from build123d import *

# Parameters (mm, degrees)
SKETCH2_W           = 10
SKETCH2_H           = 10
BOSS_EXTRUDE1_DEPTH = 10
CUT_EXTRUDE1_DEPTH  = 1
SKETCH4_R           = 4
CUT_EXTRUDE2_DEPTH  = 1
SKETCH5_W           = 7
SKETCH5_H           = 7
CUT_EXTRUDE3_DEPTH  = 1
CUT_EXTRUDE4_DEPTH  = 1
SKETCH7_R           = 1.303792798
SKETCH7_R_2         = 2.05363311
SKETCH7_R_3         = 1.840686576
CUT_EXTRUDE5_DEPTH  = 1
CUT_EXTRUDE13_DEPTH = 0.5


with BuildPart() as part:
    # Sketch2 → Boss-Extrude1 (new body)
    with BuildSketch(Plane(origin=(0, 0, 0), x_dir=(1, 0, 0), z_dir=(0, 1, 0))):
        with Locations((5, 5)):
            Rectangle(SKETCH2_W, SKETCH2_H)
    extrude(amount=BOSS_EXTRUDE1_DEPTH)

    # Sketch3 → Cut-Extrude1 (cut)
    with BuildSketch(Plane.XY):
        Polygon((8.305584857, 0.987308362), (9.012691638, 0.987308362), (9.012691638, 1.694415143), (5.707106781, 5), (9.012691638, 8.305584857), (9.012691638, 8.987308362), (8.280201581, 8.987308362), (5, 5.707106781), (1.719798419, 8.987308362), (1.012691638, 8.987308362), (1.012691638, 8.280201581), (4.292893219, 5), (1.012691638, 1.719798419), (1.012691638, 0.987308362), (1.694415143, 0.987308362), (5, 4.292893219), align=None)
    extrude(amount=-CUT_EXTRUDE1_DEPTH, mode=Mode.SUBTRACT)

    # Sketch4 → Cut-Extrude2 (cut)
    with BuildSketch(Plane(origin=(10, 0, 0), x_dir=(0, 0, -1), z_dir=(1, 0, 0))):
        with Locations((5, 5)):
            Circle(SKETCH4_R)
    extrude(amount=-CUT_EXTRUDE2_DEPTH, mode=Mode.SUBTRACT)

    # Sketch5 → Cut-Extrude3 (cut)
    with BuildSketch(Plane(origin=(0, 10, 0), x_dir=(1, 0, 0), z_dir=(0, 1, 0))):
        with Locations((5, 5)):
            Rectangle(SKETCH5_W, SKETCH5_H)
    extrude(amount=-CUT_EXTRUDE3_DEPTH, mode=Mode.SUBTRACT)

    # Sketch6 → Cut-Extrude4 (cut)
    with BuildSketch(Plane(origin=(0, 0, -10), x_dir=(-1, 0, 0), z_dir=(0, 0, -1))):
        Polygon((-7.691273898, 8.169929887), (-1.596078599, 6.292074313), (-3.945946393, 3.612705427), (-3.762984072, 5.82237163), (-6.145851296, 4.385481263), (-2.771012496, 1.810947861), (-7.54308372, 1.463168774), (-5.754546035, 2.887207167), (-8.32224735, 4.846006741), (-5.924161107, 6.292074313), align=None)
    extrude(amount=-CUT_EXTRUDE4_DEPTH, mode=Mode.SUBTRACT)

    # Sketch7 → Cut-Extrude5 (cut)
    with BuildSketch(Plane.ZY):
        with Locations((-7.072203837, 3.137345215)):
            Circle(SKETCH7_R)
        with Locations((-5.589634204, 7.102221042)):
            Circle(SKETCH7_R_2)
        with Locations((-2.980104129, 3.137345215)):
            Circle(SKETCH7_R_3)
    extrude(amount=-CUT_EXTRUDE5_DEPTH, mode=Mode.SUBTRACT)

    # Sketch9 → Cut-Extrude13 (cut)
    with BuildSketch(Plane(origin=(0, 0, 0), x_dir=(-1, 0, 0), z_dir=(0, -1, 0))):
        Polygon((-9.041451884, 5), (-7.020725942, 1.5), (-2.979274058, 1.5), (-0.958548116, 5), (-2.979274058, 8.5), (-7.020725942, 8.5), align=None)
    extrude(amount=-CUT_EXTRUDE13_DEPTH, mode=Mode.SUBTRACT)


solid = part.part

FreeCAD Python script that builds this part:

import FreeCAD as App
import Part
import Sketcher

V = App.Vector
Q = App.Units.Quantity

doc = App.newDocument("Part")
body = doc.addObject("PartDesign::Body", "Body")

# Sketch on XZ plane
sketch1 = doc.addObject("Sketcher::SketchObject", "Sketch")
body.addObject(sketch1)
sketch1.AttachmentSupport = (doc.XZ_Plane, [""])
sketch1.MapMode = "FlatFace"
sketch1.addGeometry(Part.LineSegment(V(0, -10, 0), V(0, 0, 0)), False)
sketch1.addGeometry(Part.LineSegment(V(0, 0, 0), V(10, 0, 0)), False)
sketch1.addGeometry(Part.LineSegment(V(10, 0, 0), V(10, -10, 0)), False)
sketch1.addGeometry(Part.LineSegment(V(10, -10, 0), V(0, -10, 0)), False)
sketch1.addConstraint(Sketcher.Constraint("Coincident", 0, 2, 1, 1))
sketch1.addConstraint(Sketcher.Constraint("Coincident", 1, 2, 2, 1))
sketch1.addConstraint(Sketcher.Constraint("Coincident", 2, 2, 3, 1))
sketch1.addConstraint(Sketcher.Constraint("Coincident", 3, 2, 0, 1))
sketch1.addConstraint(Sketcher.Constraint("Vertical", 0))
sketch1.addConstraint(Sketcher.Constraint("Horizontal", 1))
sketch1.addConstraint(Sketcher.Constraint("Vertical", 2))
sketch1.addConstraint(Sketcher.Constraint("Horizontal", 3))
sketch1.addConstraint(Sketcher.Constraint("Coincident", 0, 2, -1, 1))
sketch1.addConstraint(Sketcher.Constraint("Equal", 3, 0))
sketch1.addConstraint(Sketcher.Constraint("DistanceX", 1, 1, 1, 2, 10.0))
pad1 = doc.addObject("PartDesign::Pad", "Pad")
body.addObject(pad1)
pad1.Profile = sketch1
pad1.Length = 10
pad1.Reversed = True

# Sketch on XY plane
sketch2 = doc.addObject("Sketcher::SketchObject", "Sketch001")
body.addObject(sketch2)
sketch2.AttachmentSupport = (doc.XY_Plane, [""])
sketch2.MapMode = "FlatFace"
sketch2.addGeometry(Part.LineSegment(V(8.305585, 0.987308, 0), V(9.012692, 0.987308, 0)), False)
sketch2.addGeometry(Part.LineSegment(V(9.012692, 0.987308, 0), V(9.012692, 1.694415, 0)), False)
sketch2.addGeometry(Part.LineSegment(V(9.012692, 1.694415, 0), V(5.707107, 5, 0)), False)
sketch2.addGeometry(Part.LineSegment(V(5.707107, 5, 0), V(9.012692, 8.305585, 0)), False)
sketch2.addGeometry(Part.LineSegment(V(9.012692, 8.305585, 0), V(9.012692, 8.987308, 0)), False)
sketch2.addGeometry(Part.LineSegment(V(9.012692, 8.987308, 0), V(8.280202, 8.987308, 0)), False)
sketch2.addGeometry(Part.LineSegment(V(8.280202, 8.987308, 0), V(5, 5.707107, 0)), False)
sketch2.addGeometry(Part.LineSegment(V(5, 5.707107, 0), V(1.719798, 8.987308, 0)), False)
sketch2.addGeometry(Part.LineSegment(V(1.719798, 8.987308, 0), V(1.012692, 8.987308, 0)), False)
sketch2.addGeometry(Part.LineSegment(V(1.012692, 8.987308, 0), V(1.012692, 8.280202, 0)), False)
sketch2.addGeometry(Part.LineSegment(V(1.012692, 8.280202, 0), V(4.292893, 5, 0)), False)
sketch2.addGeometry(Part.LineSegment(V(4.292893, 5, 0), V(1.012692, 1.719798, 0)), False)
sketch2.addGeometry(Part.LineSegment(V(1.012692, 1.719798, 0), V(1.012692, 0.987308, 0)), False)
sketch2.addGeometry(Part.LineSegment(V(1.012692, 0.987308, 0), V(1.694415, 0.987308, 0)), False)
sketch2.addGeometry(Part.LineSegment(V(1.694415, 0.987308, 0), V(5, 4.292893, 0)), False)
sketch2.addGeometry(Part.LineSegment(V(5, 4.292893, 0), V(8.305585, 0.987308, 0)), False)
sketch2.addConstraint(Sketcher.Constraint("Coincident", 0, 2, 1, 1))
sketch2.addConstraint(Sketcher.Constraint("Coincident", 1, 2, 2, 1))
sketch2.addConstraint(Sketcher.Constraint("Coincident", 2, 2, 3, 1))
sketch2.addConstraint(Sketcher.Constraint("Coincident", 3, 2, 4, 1))
sketch2.addConstraint(Sketcher.Constraint("Coincident", 4, 2, 5, 1))
sketch2.addConstraint(Sketcher.Constraint("Coincident", 5, 2, 6, 1))
sketch2.addConstraint(Sketcher.Constraint("Coincident", 6, 2, 7, 1))
sketch2.addConstraint(Sketcher.Constraint("Coincident", 7, 2, 8, 1))
sketch2.addConstraint(Sketcher.Constraint("Coincident", 8, 2, 9, 1))
sketch2.addConstraint(Sketcher.Constraint("Coincident", 9, 2, 10, 1))
sketch2.addConstraint(Sketcher.Constraint("Coincident", 10, 2, 11, 1))
sketch2.addConstraint(Sketcher.Constraint("Coincident", 11, 2, 12, 1))
sketch2.addConstraint(Sketcher.Constraint("Coincident", 12, 2, 13, 1))
sketch2.addConstraint(Sketcher.Constraint("Coincident", 13, 2, 14, 1))
sketch2.addConstraint(Sketcher.Constraint("Coincident", 14, 2, 15, 1))
sketch2.addConstraint(Sketcher.Constraint("Coincident", 15, 2, 0, 1))
sketch2.addConstraint(Sketcher.Constraint("Horizontal", 0))
sketch2.addConstraint(Sketcher.Constraint("Vertical", 1))
sketch2.addConstraint(Sketcher.Constraint("Vertical", 4))
sketch2.addConstraint(Sketcher.Constraint("Horizontal", 5))
sketch2.addConstraint(Sketcher.Constraint("Horizontal", 8))
sketch2.addConstraint(Sketcher.Constraint("Vertical", 9))
sketch2.addConstraint(Sketcher.Constraint("Vertical", 12))
sketch2.addConstraint(Sketcher.Constraint("Horizontal", 13))
sketch2.addConstraint(Sketcher.Constraint("Perpendicular", 2, 3))
sketch2.addConstraint(Sketcher.Constraint("Parallel", 3, 6))
sketch2.addConstraint(Sketcher.Constraint("Perpendicular", 6, 7))
sketch2.addConstraint(Sketcher.Constraint("Parallel", 7, 10))
sketch2.addConstraint(Sketcher.Constraint("Perpendicular", 10, 11))
sketch2.addConstraint(Sketcher.Constraint("Parallel", 11, 14))
sketch2.addConstraint(Sketcher.Constraint("Perpendicular", 14, 15))
sketch2.addConstraint(Sketcher.Constraint("Horizontal", 5, 2, 7, 2))
sketch2.addConstraint(Sketcher.Constraint("Horizontal", 2, 2, 10, 2))
sketch2.addConstraint(Sketcher.Constraint("Horizontal", 0, 2, 12, 2))
sketch2.addConstraint(Sketcher.Constraint("Vertical", 1, 2, 3, 2))
sketch2.addConstraint(Sketcher.Constraint("Vertical", 9, 2, 11, 2))
sketch2.addConstraint(Sketcher.Constraint("Vertical", 6, 2, 14, 2))
sketch2.addConstraint(Sketcher.Constraint("Equal", 0, 8))
sketch2.addConstraint(Sketcher.Constraint("Equal", 8, 1))
sketch2.addConstraint(Sketcher.Constraint("Equal", 13, 4))
sketch2.addConstraint(Sketcher.Constraint("Equal", 1, 9))
sketch2.addConstraint(Sketcher.Constraint("Equal", 5, 12))
sketch2.addConstraint(Sketcher.Constraint("Equal", 7, 10))
sketch2.addConstraint(Sketcher.Constraint("DistanceY", -1, 1, 2, 2, 5.0))
sketch2.addConstraint(Sketcher.Constraint("DistanceX", -1, 1, 6, 2, 5.0))
sketch2.addConstraint(Sketcher.Constraint("DistanceY", 0, 2, 4, 2, 8.0))
sketch2.addConstraint(Sketcher.Constraint("DistanceX", 5, 2, 5, 1, 0.73249))
sketch2.addConstraint(Sketcher.Constraint("DistanceX", -1, 1, 5, 2, 8.280202))
pocket1 = doc.addObject("PartDesign::Pocket", "Pocket")
body.addObject(pocket1)
pocket1.Profile = sketch2
pocket1.Length = 1

# Sketch on YZ plane
sketch3 = doc.addObject("Sketcher::SketchObject", "Sketch002")
body.addObject(sketch3)
sketch3.AttachmentSupport = (doc.YZ_Plane, [""])
sketch3.MapMode = "FlatFace"
sketch3.AttachmentOffset = App.Placement(V(0, 0, 10), App.Rotation())
sketch3.addGeometry(Part.Circle(V(5, -5, 0), V(0, 0, 1), 4), False)
sketch3.addConstraint(Sketcher.Constraint("Diameter", 0, 8.0))
sketch3.addConstraint(Sketcher.Constraint("DistanceX", -1, 1, 0, 3, 5.0))
sketch3.addConstraint(Sketcher.Constraint("DistanceY", 0, 3, -1, 1, 5.0))
pocket2 = doc.addObject("PartDesign::Pocket", "Pocket001")
body.addObject(pocket2)
pocket2.Profile = sketch3
pocket2.Length = 1

# Sketch on XZ plane
sketch4 = doc.addObject("Sketcher::SketchObject", "Sketch003")
body.addObject(sketch4)
sketch4.AttachmentSupport = (doc.XZ_Plane, [""])
sketch4.MapMode = "FlatFace"
sketch4.AttachmentOffset = App.Placement(V(0, 0, -10), App.Rotation())
sketch4.addGeometry(Part.LineSegment(V(1.5, -8.5, 0), V(1.5, -1.5, 0)), False)
sketch4.addGeometry(Part.LineSegment(V(1.5, -1.5, 0), V(8.5, -1.5, 0)), False)
sketch4.addGeometry(Part.LineSegment(V(8.5, -1.5, 0), V(8.5, -8.5, 0)), False)
sketch4.addGeometry(Part.LineSegment(V(8.5, -8.5, 0), V(1.5, -8.5, 0)), False)
sketch4.addConstraint(Sketcher.Constraint("Coincident", 0, 2, 1, 1))
sketch4.addConstraint(Sketcher.Constraint("Coincident", 1, 2, 2, 1))
sketch4.addConstraint(Sketcher.Constraint("Coincident", 2, 2, 3, 1))
sketch4.addConstraint(Sketcher.Constraint("Coincident", 3, 2, 0, 1))
sketch4.addConstraint(Sketcher.Constraint("Vertical", 0))
sketch4.addConstraint(Sketcher.Constraint("Horizontal", 1))
sketch4.addConstraint(Sketcher.Constraint("Vertical", 2))
sketch4.addConstraint(Sketcher.Constraint("Horizontal", 3))
sketch4.addConstraint(Sketcher.Constraint("Equal", 3, 0))
sketch4.addConstraint(Sketcher.Constraint("DistanceX", 1, 1, 1, 2, 7.0))
sketch4.addConstraint(Sketcher.Constraint("DistanceX", -1, 1, 0, 2, 1.5))
sketch4.addConstraint(Sketcher.Constraint("DistanceY", 0, 2, -1, 1, 1.5))
pocket3 = doc.addObject("PartDesign::Pocket", "Pocket002")
body.addObject(pocket3)
pocket3.Profile = sketch4
pocket3.Length = 1
pocket3.Reversed = True

# Sketch on XY plane
sketch5 = doc.addObject("Sketcher::SketchObject", "Sketch004")
body.addObject(sketch5)
sketch5.AttachmentSupport = (doc.XY_Plane, [""])
sketch5.MapMode = "FlatFace"
sketch5.AttachmentOffset = App.Placement(V(0, 0, -10), App.Rotation())
sketch5.addGeometry(Part.LineSegment(V(1.596079, 6.292074, 0), V(7.691274, 8.16993, 0)), False)
sketch5.addGeometry(Part.LineSegment(V(7.691274, 8.16993, 0), V(5.924161, 6.292074, 0)), False)
sketch5.addGeometry(Part.LineSegment(V(5.924161, 6.292074, 0), V(8.322247, 4.846007, 0)), False)
sketch5.addGeometry(Part.LineSegment(V(8.322247, 4.846007, 0), V(5.754546, 2.887207, 0)), False)
sketch5.addGeometry(Part.LineSegment(V(5.754546, 2.887207, 0), V(7.543084, 1.463169, 0)), False)
sketch5.addGeometry(Part.LineSegment(V(7.543084, 1.463169, 0), V(2.771012, 1.810948, 0)), False)
sketch5.addGeometry(Part.LineSegment(V(2.771012, 1.810948, 0), V(6.145851, 4.385481, 0)), False)
sketch5.addGeometry(Part.LineSegment(V(6.145851, 4.385481, 0), V(3.762984, 5.822372, 0)), False)
sketch5.addGeometry(Part.LineSegment(V(3.762984, 5.822372, 0), V(3.945946, 3.612705, 0)), False)
sketch5.addGeometry(Part.LineSegment(V(3.945946, 3.612705, 0), V(1.596079, 6.292074, 0)), False)
sketch5.addConstraint(Sketcher.Constraint("Coincident", 0, 2, 1, 1))
sketch5.addConstraint(Sketcher.Constraint("Coincident", 1, 2, 2, 1))
sketch5.addConstraint(Sketcher.Constraint("Coincident", 2, 2, 3, 1))
sketch5.addConstraint(Sketcher.Constraint("Coincident", 3, 2, 4, 1))
sketch5.addConstraint(Sketcher.Constraint("Coincident", 4, 2, 5, 1))
sketch5.addConstraint(Sketcher.Constraint("Coincident", 5, 2, 6, 1))
sketch5.addConstraint(Sketcher.Constraint("Coincident", 6, 2, 7, 1))
sketch5.addConstraint(Sketcher.Constraint("Coincident", 7, 2, 8, 1))
sketch5.addConstraint(Sketcher.Constraint("Coincident", 8, 2, 9, 1))
sketch5.addConstraint(Sketcher.Constraint("Coincident", 9, 2, 0, 1))
sketch5.addConstraint(Sketcher.Constraint("Parallel", 3, 6))
sketch5.addConstraint(Sketcher.Constraint("Parallel", 2, 7))
sketch5.addConstraint(Sketcher.Constraint("Horizontal", 1, 2, 9, 2))
sketch5.addConstraint(Sketcher.Constraint("DistanceX", 3, 2, 2, 2, 2.567701))
sketch5.addConstraint(Sketcher.Constraint("DistanceY", 3, 2, 2, 2, 1.9588))
sketch5.addConstraint(Sketcher.Constraint("DistanceX", 8, 2, 3, 2, 1.8086))
sketch5.addConstraint(Sketcher.Constraint("DistanceY", 3, 2, 8, 2, 0.725498))
sketch5.addConstraint(Sketcher.Constraint("Distance", 0, 6.377911))
sketch5.addConstraint(Sketcher.Constraint("Distance", 1, 2.578571))
sketch5.addConstraint(Sketcher.Constraint("Distance", 4, 2.286209))
sketch5.addConstraint(Sketcher.Constraint("Distance", 9, 3.563832))
sketch5.addConstraint(Sketcher.Constraint("DistanceY", -1, 1, 0, 2, 8.16993))
sketch5.addConstraint(Sketcher.Constraint("DistanceX", -1, 1, 1, 2, 5.924161))
sketch5.addConstraint(Sketcher.Constraint("DistanceY", -1, 1, 4, 2, 1.463169))
sketch5.addConstraint(Sketcher.Constraint("DistanceX", -1, 1, 6, 2, 6.145851))
sketch5.addConstraint(Sketcher.Constraint("DistanceY", -1, 1, 6, 2, 4.385481))
sketch5.addConstraint(Sketcher.Constraint("DistanceY", -1, 1, 7, 2, 5.822372))
sketch5.addConstraint(Sketcher.Constraint("DistanceX", -1, 1, 9, 2, 1.596079))
sketch5.addConstraint(Sketcher.Constraint("DistanceY", 4, 2, 3, 2, 1.424038))
sketch5.addConstraint(Sketcher.Constraint("DistanceY", 5, 2, 3, 2, 1.076259))
pocket4 = doc.addObject("PartDesign::Pocket", "Pocket003")
body.addObject(pocket4)
pocket4.Profile = sketch5
pocket4.Length = 1
pocket4.Reversed = True

# Sketch on YZ plane
sketch6 = doc.addObject("Sketcher::SketchObject", "Sketch005")
body.addObject(sketch6)
sketch6.AttachmentSupport = (doc.YZ_Plane, [""])
sketch6.MapMode = "FlatFace"
sketch6.addGeometry(Part.Circle(V(3.137345, -7.072204, 0), V(0, 0, 1), 1.303793), False)
sketch6.addGeometry(Part.Circle(V(7.102221, -5.589634, 0), V(0, 0, 1), 2.053633), False)
sketch6.addGeometry(Part.Circle(V(3.137345, -2.980104, 0), V(0, 0, 1), 1.840687), False)
sketch6.addConstraint(Sketcher.Constraint("Vertical", 0, 3, 2, 3))
sketch6.addConstraint(Sketcher.Constraint("Diameter", 0, 2.607586))
sketch6.addConstraint(Sketcher.Constraint("Diameter", 1, 4.107266))
sketch6.addConstraint(Sketcher.Constraint("Diameter", 2, 3.681373))
sketch6.addConstraint(Sketcher.Constraint("DistanceY", 0, 3, 2, 3, 4.0921))
sketch6.addConstraint(Sketcher.Constraint("DistanceX", -1, 1, 1, 3, 7.102221))
sketch6.addConstraint(Sketcher.Constraint("DistanceY", 0, 3, 1, 3, 1.48257))
sketch6.addConstraint(Sketcher.Constraint("DistanceX", -1, 1, 0, 3, 3.137345))
sketch6.addConstraint(Sketcher.Constraint("DistanceY", 0, 3, -1, 1, 7.072204))
pocket5 = doc.addObject("PartDesign::Pocket", "Pocket004")
body.addObject(pocket5)
pocket5.Profile = sketch6
pocket5.Length = 1
pocket5.Reversed = True

# Sketch on XZ plane
sketch7 = doc.addObject("Sketcher::SketchObject", "Sketch006")
body.addObject(sketch7)
sketch7.AttachmentSupport = (doc.XZ_Plane, [""])
sketch7.MapMode = "FlatFace"
sketch7.addGeometry(Part.LineSegment(V(9.041452, -5, 0), V(7.020726, -1.5, 0)), False)
sketch7.addGeometry(Part.LineSegment(V(7.020726, -1.5, 0), V(2.979274, -1.5, 0)), False)
sketch7.addGeometry(Part.LineSegment(V(2.979274, -1.5, 0), V(0.958548, -5, 0)), False)
sketch7.addGeometry(Part.LineSegment(V(0.958548, -5, 0), V(2.979274, -8.5, 0)), False)
sketch7.addGeometry(Part.LineSegment(V(2.979274, -8.5, 0), V(7.020726, -8.5, 0)), False)
sketch7.addGeometry(Part.LineSegment(V(7.020726, -8.5, 0), V(9.041452, -5, 0)), False)
sketch7.addConstraint(Sketcher.Constraint("Coincident", 0, 2, 1, 1))
sketch7.addConstraint(Sketcher.Constraint("Coincident", 1, 2, 2, 1))
sketch7.addConstraint(Sketcher.Constraint("Coincident", 2, 2, 3, 1))
sketch7.addConstraint(Sketcher.Constraint("Coincident", 3, 2, 4, 1))
sketch7.addConstraint(Sketcher.Constraint("Coincident", 4, 2, 5, 1))
sketch7.addConstraint(Sketcher.Constraint("Coincident", 5, 2, 0, 1))
sketch7.addConstraint(Sketcher.Constraint("Horizontal", 1))
sketch7.addConstraint(Sketcher.Constraint("Horizontal", 4))
sketch7.addConstraint(Sketcher.Constraint("Parallel", 0, 3))
sketch7.addConstraint(Sketcher.Constraint("Parallel", 2, 5))
sketch7.addConstraint(Sketcher.Constraint("Horizontal", 2, 2, 5, 2))
sketch7.addConstraint(Sketcher.Constraint("Vertical", 1, 2, 3, 2))
sketch7.addConstraint(Sketcher.Constraint("Vertical", 0, 2, 4, 2))
sketch7.addConstraint(Sketcher.Constraint("Angle", 0, Q("120 deg")))
sketch7.addConstraint(Sketcher.Constraint("DistanceY", 2, 2, -1, 1, 5.0))
sketch7.addConstraint(Sketcher.Constraint("DistanceY", 3, 2, 1, 2, 7.0))
sketch7.addConstraint(Sketcher.Constraint("DistanceX", 1, 2, 1, 1, 4.041452))
sketch7.addConstraint(Sketcher.Constraint("DistanceX", -1, 1, 2, 2, 0.958548))
pocket6 = doc.addObject("PartDesign::Pocket", "Pocket005")
body.addObject(pocket6)
pocket6.Profile = sketch7
pocket6.Length = 0.5

doc.recompute()
